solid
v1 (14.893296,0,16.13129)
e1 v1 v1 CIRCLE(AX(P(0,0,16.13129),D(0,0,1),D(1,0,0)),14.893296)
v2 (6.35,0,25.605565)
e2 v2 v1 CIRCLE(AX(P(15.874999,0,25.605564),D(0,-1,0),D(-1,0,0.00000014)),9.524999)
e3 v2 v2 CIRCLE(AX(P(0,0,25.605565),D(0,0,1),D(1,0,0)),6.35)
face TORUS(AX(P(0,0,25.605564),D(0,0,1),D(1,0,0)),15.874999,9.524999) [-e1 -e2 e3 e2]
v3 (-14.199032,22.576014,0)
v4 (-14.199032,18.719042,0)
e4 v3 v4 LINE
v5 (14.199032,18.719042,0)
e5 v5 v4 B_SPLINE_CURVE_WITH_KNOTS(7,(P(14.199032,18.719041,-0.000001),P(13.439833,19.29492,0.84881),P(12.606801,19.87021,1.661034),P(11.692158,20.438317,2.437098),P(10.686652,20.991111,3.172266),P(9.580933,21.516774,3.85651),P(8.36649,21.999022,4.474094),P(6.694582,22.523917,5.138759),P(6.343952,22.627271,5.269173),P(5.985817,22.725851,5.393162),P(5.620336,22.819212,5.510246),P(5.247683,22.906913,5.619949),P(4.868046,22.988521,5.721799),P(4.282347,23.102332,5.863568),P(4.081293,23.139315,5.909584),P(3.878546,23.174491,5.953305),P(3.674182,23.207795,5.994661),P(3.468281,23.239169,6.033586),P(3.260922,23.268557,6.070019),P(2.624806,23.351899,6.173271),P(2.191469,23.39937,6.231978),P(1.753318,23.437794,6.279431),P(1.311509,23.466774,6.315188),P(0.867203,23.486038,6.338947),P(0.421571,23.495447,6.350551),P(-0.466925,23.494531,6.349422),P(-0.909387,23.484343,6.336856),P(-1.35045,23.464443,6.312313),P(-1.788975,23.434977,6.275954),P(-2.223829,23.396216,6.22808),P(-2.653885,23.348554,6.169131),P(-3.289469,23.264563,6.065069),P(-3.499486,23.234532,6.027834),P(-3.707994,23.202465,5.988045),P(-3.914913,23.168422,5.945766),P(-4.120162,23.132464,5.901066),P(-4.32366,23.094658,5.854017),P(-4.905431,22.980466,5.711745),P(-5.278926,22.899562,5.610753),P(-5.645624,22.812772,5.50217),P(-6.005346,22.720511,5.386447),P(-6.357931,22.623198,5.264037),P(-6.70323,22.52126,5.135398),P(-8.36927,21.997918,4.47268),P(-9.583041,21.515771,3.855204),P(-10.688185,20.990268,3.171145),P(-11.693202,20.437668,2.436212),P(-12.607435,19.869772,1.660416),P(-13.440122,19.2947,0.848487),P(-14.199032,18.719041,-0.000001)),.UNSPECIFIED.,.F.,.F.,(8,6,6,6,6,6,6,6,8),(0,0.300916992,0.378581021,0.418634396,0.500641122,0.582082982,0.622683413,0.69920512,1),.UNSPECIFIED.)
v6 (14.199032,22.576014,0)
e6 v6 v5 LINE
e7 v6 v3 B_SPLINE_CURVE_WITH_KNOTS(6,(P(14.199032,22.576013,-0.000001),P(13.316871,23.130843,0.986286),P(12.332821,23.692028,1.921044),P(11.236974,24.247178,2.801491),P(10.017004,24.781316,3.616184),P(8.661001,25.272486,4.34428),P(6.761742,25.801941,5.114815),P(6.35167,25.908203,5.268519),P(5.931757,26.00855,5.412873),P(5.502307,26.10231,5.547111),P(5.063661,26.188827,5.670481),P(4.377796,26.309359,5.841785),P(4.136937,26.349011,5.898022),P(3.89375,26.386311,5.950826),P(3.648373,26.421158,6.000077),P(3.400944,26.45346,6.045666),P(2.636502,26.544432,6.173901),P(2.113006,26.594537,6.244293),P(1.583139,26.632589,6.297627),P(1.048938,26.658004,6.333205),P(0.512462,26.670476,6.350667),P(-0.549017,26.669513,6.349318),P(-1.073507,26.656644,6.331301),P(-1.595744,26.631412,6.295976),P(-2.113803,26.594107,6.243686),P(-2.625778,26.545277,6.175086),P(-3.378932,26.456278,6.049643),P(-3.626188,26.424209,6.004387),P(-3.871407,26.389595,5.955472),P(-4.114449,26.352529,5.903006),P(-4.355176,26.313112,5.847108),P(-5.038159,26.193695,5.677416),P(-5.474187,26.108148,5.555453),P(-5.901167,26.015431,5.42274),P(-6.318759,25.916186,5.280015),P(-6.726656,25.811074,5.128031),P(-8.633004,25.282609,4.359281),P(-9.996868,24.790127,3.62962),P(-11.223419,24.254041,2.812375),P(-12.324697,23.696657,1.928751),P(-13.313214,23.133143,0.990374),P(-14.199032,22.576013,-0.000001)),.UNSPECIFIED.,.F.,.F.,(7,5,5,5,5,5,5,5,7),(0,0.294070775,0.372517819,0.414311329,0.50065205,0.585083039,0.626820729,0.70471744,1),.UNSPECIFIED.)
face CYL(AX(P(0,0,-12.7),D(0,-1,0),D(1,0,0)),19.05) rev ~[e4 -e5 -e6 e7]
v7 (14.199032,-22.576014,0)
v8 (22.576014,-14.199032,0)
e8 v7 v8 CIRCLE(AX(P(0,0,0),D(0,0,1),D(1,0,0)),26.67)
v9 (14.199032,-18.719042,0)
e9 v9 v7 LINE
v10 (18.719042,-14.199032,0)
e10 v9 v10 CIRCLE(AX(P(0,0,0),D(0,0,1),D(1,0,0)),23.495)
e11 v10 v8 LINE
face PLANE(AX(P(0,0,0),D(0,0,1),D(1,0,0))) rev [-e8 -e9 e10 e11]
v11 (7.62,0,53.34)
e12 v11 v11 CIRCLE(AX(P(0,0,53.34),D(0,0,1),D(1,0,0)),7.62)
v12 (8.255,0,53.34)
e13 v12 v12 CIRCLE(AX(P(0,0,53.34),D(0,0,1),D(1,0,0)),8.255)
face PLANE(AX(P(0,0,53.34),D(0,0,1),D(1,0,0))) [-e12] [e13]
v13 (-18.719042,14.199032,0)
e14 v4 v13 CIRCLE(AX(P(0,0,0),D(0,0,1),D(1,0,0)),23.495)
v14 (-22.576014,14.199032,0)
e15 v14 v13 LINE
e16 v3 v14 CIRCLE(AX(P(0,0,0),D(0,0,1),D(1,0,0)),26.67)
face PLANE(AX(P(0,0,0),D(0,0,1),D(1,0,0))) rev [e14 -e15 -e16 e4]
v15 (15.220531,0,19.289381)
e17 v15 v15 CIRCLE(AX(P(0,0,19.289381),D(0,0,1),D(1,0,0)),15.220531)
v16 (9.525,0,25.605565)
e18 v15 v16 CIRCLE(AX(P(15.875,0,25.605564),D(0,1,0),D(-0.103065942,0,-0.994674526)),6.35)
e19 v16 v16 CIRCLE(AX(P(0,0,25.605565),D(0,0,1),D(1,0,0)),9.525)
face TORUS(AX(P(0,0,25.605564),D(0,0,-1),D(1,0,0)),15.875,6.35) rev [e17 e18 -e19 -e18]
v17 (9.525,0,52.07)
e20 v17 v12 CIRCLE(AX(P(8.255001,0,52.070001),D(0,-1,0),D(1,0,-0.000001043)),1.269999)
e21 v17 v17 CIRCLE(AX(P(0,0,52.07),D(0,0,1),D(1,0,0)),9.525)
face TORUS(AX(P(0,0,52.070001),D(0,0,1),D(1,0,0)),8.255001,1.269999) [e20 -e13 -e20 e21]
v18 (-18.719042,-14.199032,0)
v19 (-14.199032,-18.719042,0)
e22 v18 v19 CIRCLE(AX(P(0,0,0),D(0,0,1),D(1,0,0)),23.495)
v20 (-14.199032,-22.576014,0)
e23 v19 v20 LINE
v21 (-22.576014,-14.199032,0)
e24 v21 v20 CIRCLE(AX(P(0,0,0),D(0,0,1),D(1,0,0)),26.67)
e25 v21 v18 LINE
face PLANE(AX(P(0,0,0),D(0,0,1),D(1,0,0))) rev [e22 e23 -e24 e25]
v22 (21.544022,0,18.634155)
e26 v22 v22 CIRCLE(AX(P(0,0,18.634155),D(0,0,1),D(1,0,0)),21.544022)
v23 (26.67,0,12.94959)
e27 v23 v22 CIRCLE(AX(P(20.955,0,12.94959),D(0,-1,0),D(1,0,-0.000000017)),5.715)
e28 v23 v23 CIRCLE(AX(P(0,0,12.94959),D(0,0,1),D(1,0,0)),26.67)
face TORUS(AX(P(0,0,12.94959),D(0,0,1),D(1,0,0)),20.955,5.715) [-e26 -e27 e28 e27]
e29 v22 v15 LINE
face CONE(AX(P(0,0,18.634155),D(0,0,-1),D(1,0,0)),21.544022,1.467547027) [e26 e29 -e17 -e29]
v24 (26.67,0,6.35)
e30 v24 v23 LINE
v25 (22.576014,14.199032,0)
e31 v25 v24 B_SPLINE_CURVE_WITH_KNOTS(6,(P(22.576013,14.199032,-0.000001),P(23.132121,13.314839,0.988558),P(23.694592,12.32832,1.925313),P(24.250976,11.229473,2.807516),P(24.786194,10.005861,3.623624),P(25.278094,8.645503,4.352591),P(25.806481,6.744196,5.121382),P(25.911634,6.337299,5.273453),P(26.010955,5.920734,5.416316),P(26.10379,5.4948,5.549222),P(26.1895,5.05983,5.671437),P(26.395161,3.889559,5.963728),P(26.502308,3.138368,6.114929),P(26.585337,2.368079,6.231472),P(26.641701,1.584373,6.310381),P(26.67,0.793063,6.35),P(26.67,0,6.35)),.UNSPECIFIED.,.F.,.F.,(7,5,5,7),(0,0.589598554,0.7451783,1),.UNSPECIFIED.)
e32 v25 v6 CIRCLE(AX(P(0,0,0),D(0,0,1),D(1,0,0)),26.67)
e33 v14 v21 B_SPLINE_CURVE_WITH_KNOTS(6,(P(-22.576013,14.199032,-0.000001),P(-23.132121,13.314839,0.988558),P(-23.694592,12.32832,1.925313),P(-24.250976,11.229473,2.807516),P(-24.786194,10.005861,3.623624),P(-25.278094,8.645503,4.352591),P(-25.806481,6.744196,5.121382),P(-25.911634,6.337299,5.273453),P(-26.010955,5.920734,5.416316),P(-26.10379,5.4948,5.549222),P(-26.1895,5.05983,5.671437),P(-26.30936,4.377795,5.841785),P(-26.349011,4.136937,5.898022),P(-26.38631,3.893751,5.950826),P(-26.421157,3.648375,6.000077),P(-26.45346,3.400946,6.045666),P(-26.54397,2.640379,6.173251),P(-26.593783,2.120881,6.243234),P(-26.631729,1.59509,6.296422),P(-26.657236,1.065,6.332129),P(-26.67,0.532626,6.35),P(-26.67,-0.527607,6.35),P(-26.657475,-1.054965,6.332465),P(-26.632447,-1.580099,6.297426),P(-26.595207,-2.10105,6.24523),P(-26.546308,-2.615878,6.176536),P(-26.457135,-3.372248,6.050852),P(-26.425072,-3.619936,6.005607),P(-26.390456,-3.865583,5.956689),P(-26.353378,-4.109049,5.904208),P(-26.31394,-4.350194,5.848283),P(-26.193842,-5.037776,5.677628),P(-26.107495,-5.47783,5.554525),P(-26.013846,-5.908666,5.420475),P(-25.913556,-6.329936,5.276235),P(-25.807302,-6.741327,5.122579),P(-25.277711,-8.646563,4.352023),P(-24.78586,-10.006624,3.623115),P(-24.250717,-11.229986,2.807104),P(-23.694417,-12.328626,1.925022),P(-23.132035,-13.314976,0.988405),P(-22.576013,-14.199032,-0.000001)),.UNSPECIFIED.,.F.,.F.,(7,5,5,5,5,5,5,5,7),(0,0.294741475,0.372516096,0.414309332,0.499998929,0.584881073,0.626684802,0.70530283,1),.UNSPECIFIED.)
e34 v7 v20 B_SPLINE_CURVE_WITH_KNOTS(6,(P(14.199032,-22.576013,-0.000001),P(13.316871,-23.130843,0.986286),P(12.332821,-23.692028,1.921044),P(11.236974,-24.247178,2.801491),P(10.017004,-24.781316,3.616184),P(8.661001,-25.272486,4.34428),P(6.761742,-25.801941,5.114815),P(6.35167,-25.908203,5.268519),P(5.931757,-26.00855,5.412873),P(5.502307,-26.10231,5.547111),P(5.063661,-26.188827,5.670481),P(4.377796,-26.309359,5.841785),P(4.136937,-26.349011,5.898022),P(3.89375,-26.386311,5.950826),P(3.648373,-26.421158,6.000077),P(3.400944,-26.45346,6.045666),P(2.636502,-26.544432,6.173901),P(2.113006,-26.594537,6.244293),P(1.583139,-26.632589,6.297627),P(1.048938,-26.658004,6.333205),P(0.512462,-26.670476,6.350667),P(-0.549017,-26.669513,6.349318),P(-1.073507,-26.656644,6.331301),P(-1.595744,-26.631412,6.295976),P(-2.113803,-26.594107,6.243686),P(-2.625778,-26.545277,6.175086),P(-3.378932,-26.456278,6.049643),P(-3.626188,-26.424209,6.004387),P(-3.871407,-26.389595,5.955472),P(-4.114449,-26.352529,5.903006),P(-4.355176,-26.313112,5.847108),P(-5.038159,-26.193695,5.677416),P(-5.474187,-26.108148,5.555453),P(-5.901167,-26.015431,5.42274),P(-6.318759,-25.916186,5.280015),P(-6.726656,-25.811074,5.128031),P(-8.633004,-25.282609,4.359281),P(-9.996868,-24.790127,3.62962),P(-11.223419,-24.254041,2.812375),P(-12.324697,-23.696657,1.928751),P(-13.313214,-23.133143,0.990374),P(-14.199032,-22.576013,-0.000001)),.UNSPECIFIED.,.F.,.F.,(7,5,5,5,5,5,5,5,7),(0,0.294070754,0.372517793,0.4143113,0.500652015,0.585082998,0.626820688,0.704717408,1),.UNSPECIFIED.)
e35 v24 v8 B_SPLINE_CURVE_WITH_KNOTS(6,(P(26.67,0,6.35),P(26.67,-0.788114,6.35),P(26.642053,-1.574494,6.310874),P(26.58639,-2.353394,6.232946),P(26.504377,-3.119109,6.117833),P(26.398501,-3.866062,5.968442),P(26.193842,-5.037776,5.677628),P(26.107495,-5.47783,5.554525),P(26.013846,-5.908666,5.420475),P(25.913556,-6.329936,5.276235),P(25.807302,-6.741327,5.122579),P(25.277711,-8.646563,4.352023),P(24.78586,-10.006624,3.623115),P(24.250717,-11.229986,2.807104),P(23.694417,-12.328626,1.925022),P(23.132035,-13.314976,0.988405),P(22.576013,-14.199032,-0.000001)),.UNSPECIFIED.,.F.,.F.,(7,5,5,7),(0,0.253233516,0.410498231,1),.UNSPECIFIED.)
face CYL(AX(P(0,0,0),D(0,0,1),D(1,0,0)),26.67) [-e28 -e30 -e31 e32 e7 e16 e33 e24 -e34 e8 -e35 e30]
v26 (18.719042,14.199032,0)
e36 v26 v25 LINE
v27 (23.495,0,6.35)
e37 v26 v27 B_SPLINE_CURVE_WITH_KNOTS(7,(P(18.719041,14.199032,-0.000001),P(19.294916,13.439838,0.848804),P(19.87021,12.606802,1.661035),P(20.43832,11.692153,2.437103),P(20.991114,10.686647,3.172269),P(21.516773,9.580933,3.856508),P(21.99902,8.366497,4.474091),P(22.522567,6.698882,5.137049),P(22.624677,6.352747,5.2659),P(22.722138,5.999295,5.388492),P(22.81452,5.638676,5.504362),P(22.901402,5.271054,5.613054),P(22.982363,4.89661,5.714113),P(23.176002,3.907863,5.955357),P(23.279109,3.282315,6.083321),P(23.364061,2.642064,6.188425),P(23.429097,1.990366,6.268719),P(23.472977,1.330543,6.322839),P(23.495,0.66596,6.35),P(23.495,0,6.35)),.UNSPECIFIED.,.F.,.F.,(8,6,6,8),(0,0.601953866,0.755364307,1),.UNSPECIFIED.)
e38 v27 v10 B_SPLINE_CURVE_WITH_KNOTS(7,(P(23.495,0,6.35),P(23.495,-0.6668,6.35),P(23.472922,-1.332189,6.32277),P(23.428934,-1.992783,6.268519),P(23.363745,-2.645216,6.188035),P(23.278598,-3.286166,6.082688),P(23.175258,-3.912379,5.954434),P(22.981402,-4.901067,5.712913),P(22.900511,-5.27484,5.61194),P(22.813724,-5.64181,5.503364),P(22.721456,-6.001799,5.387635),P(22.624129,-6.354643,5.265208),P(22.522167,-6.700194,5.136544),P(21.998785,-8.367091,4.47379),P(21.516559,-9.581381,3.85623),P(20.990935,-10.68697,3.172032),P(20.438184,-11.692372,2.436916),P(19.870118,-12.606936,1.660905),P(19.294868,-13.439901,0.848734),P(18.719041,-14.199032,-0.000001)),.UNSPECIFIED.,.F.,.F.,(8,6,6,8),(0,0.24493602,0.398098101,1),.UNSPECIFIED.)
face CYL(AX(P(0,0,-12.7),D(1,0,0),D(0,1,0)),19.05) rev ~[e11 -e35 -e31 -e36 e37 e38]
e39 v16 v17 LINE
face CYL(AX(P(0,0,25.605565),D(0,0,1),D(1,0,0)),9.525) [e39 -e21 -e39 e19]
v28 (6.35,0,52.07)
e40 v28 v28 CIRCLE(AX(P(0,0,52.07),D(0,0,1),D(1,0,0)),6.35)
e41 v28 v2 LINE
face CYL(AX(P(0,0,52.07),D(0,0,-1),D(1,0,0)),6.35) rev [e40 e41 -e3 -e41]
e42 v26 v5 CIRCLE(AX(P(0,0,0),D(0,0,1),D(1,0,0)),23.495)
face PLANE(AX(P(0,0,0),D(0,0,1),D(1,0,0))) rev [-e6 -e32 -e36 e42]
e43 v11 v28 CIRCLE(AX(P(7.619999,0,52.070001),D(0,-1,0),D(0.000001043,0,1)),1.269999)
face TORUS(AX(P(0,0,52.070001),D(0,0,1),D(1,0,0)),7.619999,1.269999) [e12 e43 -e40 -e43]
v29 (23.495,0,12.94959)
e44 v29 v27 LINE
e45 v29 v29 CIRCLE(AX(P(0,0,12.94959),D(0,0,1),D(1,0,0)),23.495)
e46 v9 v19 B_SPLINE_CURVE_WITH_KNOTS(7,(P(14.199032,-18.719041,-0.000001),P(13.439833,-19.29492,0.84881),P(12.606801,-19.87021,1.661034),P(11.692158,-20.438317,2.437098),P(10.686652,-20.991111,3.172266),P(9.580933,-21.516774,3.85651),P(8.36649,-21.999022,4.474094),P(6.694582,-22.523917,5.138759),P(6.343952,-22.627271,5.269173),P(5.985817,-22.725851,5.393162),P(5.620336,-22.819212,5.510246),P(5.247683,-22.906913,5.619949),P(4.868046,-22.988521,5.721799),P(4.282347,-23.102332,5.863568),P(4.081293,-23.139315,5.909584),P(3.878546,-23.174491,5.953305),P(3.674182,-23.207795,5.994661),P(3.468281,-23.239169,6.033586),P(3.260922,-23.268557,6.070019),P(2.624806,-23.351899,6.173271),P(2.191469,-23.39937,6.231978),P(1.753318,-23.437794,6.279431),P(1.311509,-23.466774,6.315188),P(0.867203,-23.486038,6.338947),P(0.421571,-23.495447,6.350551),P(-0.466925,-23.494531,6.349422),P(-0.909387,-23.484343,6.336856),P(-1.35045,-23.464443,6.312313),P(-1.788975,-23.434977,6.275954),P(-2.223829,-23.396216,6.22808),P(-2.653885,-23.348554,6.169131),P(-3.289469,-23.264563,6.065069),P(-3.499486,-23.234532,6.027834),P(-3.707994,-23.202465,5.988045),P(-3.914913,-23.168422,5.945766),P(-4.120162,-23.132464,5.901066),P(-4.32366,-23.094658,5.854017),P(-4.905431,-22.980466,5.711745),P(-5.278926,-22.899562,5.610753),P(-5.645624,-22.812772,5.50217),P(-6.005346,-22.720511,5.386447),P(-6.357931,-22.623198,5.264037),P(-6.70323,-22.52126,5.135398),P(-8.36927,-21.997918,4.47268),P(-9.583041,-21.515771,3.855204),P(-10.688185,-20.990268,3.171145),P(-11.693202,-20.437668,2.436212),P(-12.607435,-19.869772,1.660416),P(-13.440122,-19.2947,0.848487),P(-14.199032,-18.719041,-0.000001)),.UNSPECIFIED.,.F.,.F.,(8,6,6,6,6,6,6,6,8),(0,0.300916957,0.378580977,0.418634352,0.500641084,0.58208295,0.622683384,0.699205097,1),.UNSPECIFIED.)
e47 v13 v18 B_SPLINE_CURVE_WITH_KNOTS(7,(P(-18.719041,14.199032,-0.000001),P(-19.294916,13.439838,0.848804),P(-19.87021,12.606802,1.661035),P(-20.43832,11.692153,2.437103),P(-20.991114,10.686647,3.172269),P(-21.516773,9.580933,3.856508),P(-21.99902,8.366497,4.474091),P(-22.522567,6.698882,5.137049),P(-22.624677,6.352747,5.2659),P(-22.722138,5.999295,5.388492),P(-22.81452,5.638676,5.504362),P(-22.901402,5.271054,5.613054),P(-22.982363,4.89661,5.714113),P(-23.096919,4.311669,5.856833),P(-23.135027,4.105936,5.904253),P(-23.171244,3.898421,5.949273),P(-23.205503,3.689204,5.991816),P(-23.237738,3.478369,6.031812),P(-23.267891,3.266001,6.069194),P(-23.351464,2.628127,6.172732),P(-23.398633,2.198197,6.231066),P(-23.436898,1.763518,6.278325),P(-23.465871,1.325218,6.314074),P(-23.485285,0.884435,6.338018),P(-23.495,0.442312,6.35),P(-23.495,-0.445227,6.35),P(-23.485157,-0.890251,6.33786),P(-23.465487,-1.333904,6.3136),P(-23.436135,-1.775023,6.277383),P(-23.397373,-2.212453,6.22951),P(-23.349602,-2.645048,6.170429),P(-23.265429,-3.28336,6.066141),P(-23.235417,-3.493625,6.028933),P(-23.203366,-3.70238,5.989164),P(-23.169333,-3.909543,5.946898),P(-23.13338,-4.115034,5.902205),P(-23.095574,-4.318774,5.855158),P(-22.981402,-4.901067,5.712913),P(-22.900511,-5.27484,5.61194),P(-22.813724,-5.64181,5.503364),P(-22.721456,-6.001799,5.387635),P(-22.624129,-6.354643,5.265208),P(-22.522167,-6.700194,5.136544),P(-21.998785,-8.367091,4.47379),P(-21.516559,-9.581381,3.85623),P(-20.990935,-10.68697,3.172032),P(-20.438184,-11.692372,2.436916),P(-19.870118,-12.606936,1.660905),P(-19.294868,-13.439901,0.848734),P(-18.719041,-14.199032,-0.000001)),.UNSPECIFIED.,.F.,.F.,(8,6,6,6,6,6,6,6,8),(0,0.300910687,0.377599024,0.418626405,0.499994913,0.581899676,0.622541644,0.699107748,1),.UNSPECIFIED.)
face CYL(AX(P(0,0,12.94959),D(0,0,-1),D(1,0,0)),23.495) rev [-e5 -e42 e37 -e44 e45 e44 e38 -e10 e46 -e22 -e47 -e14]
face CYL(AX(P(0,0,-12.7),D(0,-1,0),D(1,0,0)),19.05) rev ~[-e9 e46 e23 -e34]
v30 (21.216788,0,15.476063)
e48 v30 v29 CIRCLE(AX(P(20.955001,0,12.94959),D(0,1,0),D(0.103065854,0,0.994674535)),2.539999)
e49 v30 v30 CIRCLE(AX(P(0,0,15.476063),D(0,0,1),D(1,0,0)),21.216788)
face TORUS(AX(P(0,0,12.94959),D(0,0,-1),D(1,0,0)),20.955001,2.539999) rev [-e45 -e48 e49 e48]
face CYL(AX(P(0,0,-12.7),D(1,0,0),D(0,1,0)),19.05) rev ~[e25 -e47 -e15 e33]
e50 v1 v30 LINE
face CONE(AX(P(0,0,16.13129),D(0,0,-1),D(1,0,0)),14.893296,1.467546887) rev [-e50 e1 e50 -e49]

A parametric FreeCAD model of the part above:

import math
import FreeCAD as App
import Part
import Sketcher
Q = App.Units.Quantity

doc = App.newDocument("Part")
body = doc.addObject("PartDesign::Body", "Body")

# Sketch on XZ plane
sketch1 = body.newObject("Sketcher::SketchObject", "Sketch")
sketch1.AttachmentSupport = (doc.getObject("XZ_Plane"), [""])
sketch1.MapMode = "FlatFace"
sketch1.addGeometry(Part.ArcOfCircle(Part.Circle(App.Vector(7.6, 52.1, 0), App.Vector(0, 0, 1), 1.3), math.radians(90), math.radians(180)), False)
sketch1.addGeometry(Part.LineSegment(App.Vector(6.3, 52.1, 0), App.Vector(6.3, 25.6, 0)), False)
sketch1.addGeometry(Part.ArcOfCircle(Part.Circle(App.Vector(15.9, 25.6, 0), App.Vector(0, 0, 1), 9.5), math.radians(180), math.radians(264)), False)
sketch1.addGeometry(Part.LineSegment(App.Vector(14.9, 16.1, 0), App.Vector(21.2, 15.5, 0)), False)
sketch1.addGeometry(Part.ArcOfCircle(Part.Circle(App.Vector(21, 12.9, 0), App.Vector(0, 0, 1), 2.5), math.radians(0), math.radians(84)), False)
sketch1.addGeometry(Part.LineSegment(App.Vector(23.5, 12.9, 0), App.Vector(23.5, 0, 0)), False)
sketch1.addGeometry(Part.LineSegment(App.Vector(23.5, 0, 0), App.Vector(26.7, 0, 0)), False)
sketch1.addGeometry(Part.LineSegment(App.Vector(26.7, 0, 0), App.Vector(26.7, 12.9, 0)), False)
sketch1.addGeometry(Part.ArcOfCircle(Part.Circle(App.Vector(21, 12.9, 0), App.Vector(0, 0, 1), 5.7), math.radians(0), math.radians(84)), False)
sketch1.addGeometry(Part.LineSegment(App.Vector(21.5, 18.6, 0), App.Vector(15.2, 19.3, 0)), False)
sketch1.addGeometry(Part.ArcOfCircle(Part.Circle(App.Vector(15.9, 25.6, 0), App.Vector(0, 0, 1), 6.3), math.radians(180), math.radians(264)), False)
sketch1.addGeometry(Part.LineSegment(App.Vector(9.5, 25.6, 0), App.Vector(9.5, 52.1, 0)), False)
sketch1.addGeometry(Part.ArcOfCircle(Part.Circle(App.Vector(8.3, 52.1, 0), App.Vector(0, 0, 1), 1.3), math.radians(0), math.radians(90)), False)
sketch1.addGeometry(Part.LineSegment(App.Vector(8.3, 53.3, 0), App.Vector(7.6, 53.3, 0)), False)
sketch1.addConstraint(Sketcher.Constraint("Tangent", 0, 2, 1, 1))
sketch1.addConstraint(Sketcher.Constraint("Tangent", 1, 2, 2, 1))
sketch1.addConstraint(Sketcher.Constraint("Tangent", 2, 2, 3, 1))
sketch1.addConstraint(Sketcher.Constraint("Tangent", 3, 2, 4, 2))
sketch1.addConstraint(Sketcher.Constraint("Tangent", 4, 1, 5, 1))
sketch1.addConstraint(Sketcher.Constraint("Coincident", 5, 2, 6, 1))
sketch1.addConstraint(Sketcher.Constraint("Coincident", 6, 2, 7, 1))
sketch1.addConstraint(Sketcher.Constraint("Tangent", 7, 2, 8, 1))
sketch1.addConstraint(Sketcher.Constraint("Tangent", 8, 2, 9, 1))
sketch1.addConstraint(Sketcher.Constraint("Tangent", 9, 2, 10, 2))
sketch1.addConstraint(Sketcher.Constraint("Tangent", 10, 1, 11, 1))
sketch1.addConstraint(Sketcher.Constraint("Tangent", 11, 2, 12, 1))
sketch1.addConstraint(Sketcher.Constraint("Tangent", 12, 2, 13, 1))
sketch1.addConstraint(Sketcher.Constraint("Tangent", 13, 2, 0, 1))
sketch1.addConstraint(Sketcher.Constraint("Vertical", 1))
sketch1.addConstraint(Sketcher.Constraint("Vertical", 5))
sketch1.addConstraint(Sketcher.Constraint("Horizontal", 6))
sketch1.addConstraint(Sketcher.Constraint("Vertical", 7))
sketch1.addConstraint(Sketcher.Constraint("Vertical", 11))
sketch1.addConstraint(Sketcher.Constraint("Horizontal", 13))
sketch1.addConstraint(Sketcher.Constraint("Coincident", 8, 3, 4, 3))
sketch1.addConstraint(Sketcher.Constraint("Coincident", 10, 3, 2, 3))
sketch1.addConstraint(Sketcher.Constraint("Equal", 0, 12))
sketch1.addConstraint(Sketcher.Constraint("PointOnObject", 5, 2, -1))
sketch1.addConstraint(Sketcher.Constraint("Parallel", 3, 9))
sketch1.addConstraint(Sketcher.Constraint("Radius", 4, Q("0.1 in")))
sketch1.addConstraint(Sketcher.Constraint("Radius", 0, Q("0.0499999 in")))
sketch1.addConstraint(Sketcher.Constraint("Radius", 10, Q("0.25 in")))
sketch1.addConstraint(Sketcher.Constraint("Radius", 2, Q("0.375 in")))
sketch1.addConstraint(Sketcher.Constraint("DistanceX", -1, 1, 0, 3, Q("0.2999999 in")))
sketch1.addConstraint(Sketcher.Constraint("DistanceY", -1, 1, 12, 2, Q("2.1 in")))
sketch1.addConstraint(Sketcher.Constraint("DistanceX", 2, 3, 4, 3, Q("0.2000001 in")))
sketch1.addConstraint(Sketcher.Constraint("DistanceY", 5, 2, 5, 1, Q("12.94959 mm")))
sketch1.addConstraint(Sketcher.Constraint("DistanceY", 8, 3, 2, 2, Q("3.1817 mm")))
revolution = body.newObject("PartDesign::Revolution", "Revolution")
revolution.Profile = sketch1
revolution.ReferenceAxis = (sketch1, ["V_Axis"])
revolution.Angle = 360

# Sketch on XZ plane
sketch2 = body.newObject("Sketcher::SketchObject", "Sketch001")
sketch2.AttachmentSupport = (doc.getObject("XZ_Plane"), [""])
sketch2.MapMode = "FlatFace"
sketch2.addGeometry(Part.Circle(App.Vector(0, -13, 0), App.Vector(0, 0, 1), 19), False)
sketch2.addConstraint(Sketcher.Constraint("PointOnObject", 0, 3, -2))
sketch2.addConstraint(Sketcher.Constraint("Diameter", 0, Q("1.5 in")))
sketch2.addConstraint(Sketcher.Constraint("DistanceY", 0, 3, -1, 1, Q("0.5 in")))
pocket1 = body.newObject("PartDesign::Pocket", "Pocket")
pocket1.Profile = sketch2
pocket1.Length = Q("3 in")
pocket1.Midplane = True

# Sketch on YZ plane
sketch3 = body.newObject("Sketcher::SketchObject", "Sketch002")
sketch3.AttachmentSupport = (doc.getObject("YZ_Plane"), [""])
sketch3.MapMode = "FlatFace"
sketch3.addGeometry(Part.Circle(App.Vector(0, -13, 0), App.Vector(0, 0, 1), 19), False)
sketch3.addConstraint(Sketcher.Constraint("PointOnObject", 0, 3, -2))
sketch3.addConstraint(Sketcher.Constraint("Diameter", 0, Q("1.5 in")))
sketch3.addConstraint(Sketcher.Constraint("DistanceY", 0, 3, -1, 1, Q("0.5 in")))
pocket2 = body.newObject("PartDesign::Pocket", "Pocket001")
pocket2.Profile = sketch3
pocket2.Length = Q("3 in")
pocket2.Midplane = True

doc.recompute()
